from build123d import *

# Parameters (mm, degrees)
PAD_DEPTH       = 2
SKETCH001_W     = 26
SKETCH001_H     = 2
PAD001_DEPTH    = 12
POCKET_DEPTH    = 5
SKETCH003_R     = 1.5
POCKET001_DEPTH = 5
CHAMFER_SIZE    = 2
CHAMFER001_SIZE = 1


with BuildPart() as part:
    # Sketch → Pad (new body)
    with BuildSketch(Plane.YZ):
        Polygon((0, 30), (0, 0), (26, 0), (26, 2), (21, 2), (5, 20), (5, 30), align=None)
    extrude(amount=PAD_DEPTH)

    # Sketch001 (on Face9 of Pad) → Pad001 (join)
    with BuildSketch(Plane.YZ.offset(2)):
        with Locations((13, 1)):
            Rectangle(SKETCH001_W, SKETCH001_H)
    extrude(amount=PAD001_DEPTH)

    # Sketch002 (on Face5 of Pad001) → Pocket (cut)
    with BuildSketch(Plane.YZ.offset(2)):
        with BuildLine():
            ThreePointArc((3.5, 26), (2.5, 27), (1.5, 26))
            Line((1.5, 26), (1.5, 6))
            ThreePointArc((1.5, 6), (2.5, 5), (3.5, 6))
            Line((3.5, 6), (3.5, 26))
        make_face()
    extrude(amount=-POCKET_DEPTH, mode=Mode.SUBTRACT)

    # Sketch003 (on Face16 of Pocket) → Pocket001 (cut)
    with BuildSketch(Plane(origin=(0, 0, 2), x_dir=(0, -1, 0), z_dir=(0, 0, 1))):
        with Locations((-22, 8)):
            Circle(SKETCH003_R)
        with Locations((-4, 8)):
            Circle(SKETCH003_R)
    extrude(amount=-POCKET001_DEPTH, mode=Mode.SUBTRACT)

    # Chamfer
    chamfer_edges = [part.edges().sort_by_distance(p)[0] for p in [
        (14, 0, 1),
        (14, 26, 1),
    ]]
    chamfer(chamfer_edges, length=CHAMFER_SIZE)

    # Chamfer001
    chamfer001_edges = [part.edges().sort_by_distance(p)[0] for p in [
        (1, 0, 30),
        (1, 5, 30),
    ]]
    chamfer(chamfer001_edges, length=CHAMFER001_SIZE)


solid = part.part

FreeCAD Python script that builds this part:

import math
import FreeCAD as App
import Part
import Sketcher
from FreeCAD import Vector
Q = App.Units.Quantity


def edges_at(feature, points):
    """Names of the edges that pass closest to the given points."""
    edges = feature.Shape.Edges
    near = lambda p: min(range(len(edges)), key=lambda i: edges[i].distToShape(Part.Vertex(*p))[0])
    return sorted({f"Edge{near(p) + 1}" for p in points})


def add_polygon(sketch, points):
    """Adds a closed chain of lines whose ends are joined by coincident constraints."""
    first, n = sketch.GeometryCount, len(points)
    for a, b in zip(points, points[1:] + points[:1]):
        sketch.addGeometry(Part.LineSegment(App.Vector(*a, 0), App.Vector(*b, 0)), False)
    for i in range(n):
        sketch.addConstraint(Sketcher.Constraint("Coincident", first + i, 2, first + (i + 1) % n, 1))

doc = App.newDocument("Part")
body = doc.addObject("PartDesign::Body", "Body")

sketch1 = body.newObject("Sketcher::SketchObject", "Sketch")
sketch1.AttachmentSupport = (doc.getObject("YZ_Plane"), [""])
sketch1.MapMode = "FlatFace"
add_polygon(sketch1, [(0, 30), (0, 0), (26, 0), (26, 2), (21, 2), (5, 20), (5, 30)])
sketch1.addConstraint(Sketcher.Constraint("Vertical", 0))
sketch1.addConstraint(Sketcher.Constraint("Horizontal", 1))
sketch1.addConstraint(Sketcher.Constraint("Vertical", 2))
sketch1.addConstraint(Sketcher.Constraint("Horizontal", 3))
sketch1.addConstraint(Sketcher.Constraint("Vertical", 5))
sketch1.addConstraint(Sketcher.Constraint("Horizontal", 6))
sketch1.addConstraint(Sketcher.Constraint("Coincident", 0, 2, -1, 1))
sketch1.addConstraint(Sketcher.Constraint("Equal", 3, 6))
sketch1.addConstraint(Sketcher.Constraint("DistanceX", 1, 1, 1, 2, Q("26 mm")))
sketch1.addConstraint(Sketcher.Constraint("DistanceX", 3, 2, 3, 1, Q("5 mm")))
sketch1.addConstraint(Sketcher.Constraint("DistanceY", 0, 2, 0, 1, Q("30 mm")))
sketch1.addConstraint(Sketcher.Constraint("DistanceY", 2, 1, 2, 2, Q("2 mm")))
sketch1.addConstraint(Sketcher.Constraint("DistanceY", 5, 1, 5, 2, Q("10 mm")))
pad1 = body.newObject("PartDesign::Pad", "Pad")
pad1.Profile = sketch1
pad1.Length = 2

sketch2 = body.newObject("Sketcher::SketchObject", "Sketch001")
sketch2.AttachmentSupport = (doc.getObject("YZ_Plane"), [""])
sketch2.MapMode = "FlatFace"
sketch2.AttachmentOffset = App.Placement(Vector(0, 0, 2), App.Rotation())
add_polygon(sketch2, [(0, 2), (0, 0), (26, 0), (26, 2)])
sketch2.addConstraint(Sketcher.Constraint("Vertical", 0))
sketch2.addConstraint(Sketcher.Constraint("Horizontal", 1))
sketch2.addConstraint(Sketcher.Constraint("Vertical", 2))
sketch2.addConstraint(Sketcher.Constraint("Horizontal", 3))
sketch2.addConstraint(Sketcher.Constraint("Coincident", 0, 2, -1, 1))
sketch2.addConstraint(Sketcher.Constraint("DistanceX", 1, 1, 1, 2, Q("26 mm")))
sketch2.addConstraint(Sketcher.Constraint("DistanceY", 0, 2, 0, 1, Q("2 mm")))
pad2 = body.newObject("PartDesign::Pad", "Pad001")
pad2.Profile = sketch2
pad2.Length = 12

sketch3 = body.newObject("Sketcher::SketchObject", "Sketch002")
sketch3.AttachmentSupport = (doc.getObject("YZ_Plane"), [""])
sketch3.MapMode = "FlatFace"
sketch3.AttachmentOffset = App.Placement(Vector(0, 0, 2), App.Rotation())
sketch3.addGeometry(Part.ArcOfCircle(Part.Circle(Vector(2.5, 26, 0), Vector(0, 0, 1), 1), math.radians(0), math.radians(180)), False)
sketch3.addGeometry(Part.LineSegment(Vector(1.5, 26, 0), Vector(1.5, 6, 0)), False)
sketch3.addGeometry(Part.ArcOfCircle(Part.Circle(Vector(2.5, 6, 0), Vector(0, 0, 1), 1), math.radians(180), math.radians(360)), False)
sketch3.addGeometry(Part.LineSegment(Vector(3.5, 6, 0), Vector(3.5, 26, 0)), False)
sketch3.addConstraint(Sketcher.Constraint("Tangent", 0, 2, 1, 1))
sketch3.addConstraint(Sketcher.Constraint("Tangent", 1, 2, 2, 1))
sketch3.addConstraint(Sketcher.Constraint("Tangent", 2, 2, 3, 1))
sketch3.addConstraint(Sketcher.Constraint("Tangent", 3, 2, 0, 1))
sketch3.addConstraint(Sketcher.Constraint("Vertical", 1))
sketch3.addConstraint(Sketcher.Constraint("Vertical", 3))
sketch3.addConstraint(Sketcher.Constraint("Radius", 0, Q("1 mm")))
sketch3.addConstraint(Sketcher.Constraint("DistanceY", 1, 2, 1, 1, Q("20 mm")))
sketch3.addConstraint(Sketcher.Constraint("DistanceY", -1, 1, 0, 3, Q("26 mm")))
sketch3.addConstraint(Sketcher.Constraint("DistanceX", -1, 1, 0, 3, Q("2.5 mm")))
pocket1 = body.newObject("PartDesign::Pocket", "Pocket")
pocket1.Profile = sketch3
pocket1.Length = 5

sketch4 = body.newObject("Sketcher::SketchObject", "Sketch003")
sketch4.AttachmentSupport = (doc.getObject("XY_Plane"), [""])
sketch4.MapMode = "FlatFace"
sketch4.AttachmentOffset = App.Placement(Vector(0, 0, 2), App.Rotation())
sketch4.addGeometry(Part.Circle(Vector(8, 22, 0), Vector(0, 0, 1), 1.5), False)
sketch4.addGeometry(Part.Circle(Vector(8, 4, 0), Vector(0, 0, 1), 1.5), False)
sketch4.addConstraint(Sketcher.Constraint("Equal", 0, 1))
sketch4.addConstraint(Sketcher.Constraint("Vertical", 0, 3, 1, 3))
sketch4.addConstraint(Sketcher.Constraint("Diameter", 0, Q("3 mm")))
sketch4.addConstraint(Sketcher.Constraint("DistanceX", -1, 1, 0, 3, Q("8 mm")))
sketch4.addConstraint(Sketcher.Constraint("DistanceY", -1, 1, 0, 3, Q("22 mm")))
sketch4.addConstraint(Sketcher.Constraint("DistanceY", -1, 1, 1, 3, Q("4 mm")))
pocket2 = body.newObject("PartDesign::Pocket", "Pocket001")
pocket2.Profile = sketch4
pocket2.Length = 5
doc.recompute()

chamfer = body.newObject("PartDesign::Chamfer", "Chamfer")
chamfer.Base = (pocket2, edges_at(pocket2, [(14, 0, 1), (14, 26, 1)]))
chamfer.Size = 2
doc.recompute()

chamfer2 = body.newObject("PartDesign::Chamfer", "Chamfer001")
chamfer2.Base = (chamfer, edges_at(chamfer, [(1, 0, 30), (1, 5, 30)]))
chamfer2.Size = 1

doc.recompute()
